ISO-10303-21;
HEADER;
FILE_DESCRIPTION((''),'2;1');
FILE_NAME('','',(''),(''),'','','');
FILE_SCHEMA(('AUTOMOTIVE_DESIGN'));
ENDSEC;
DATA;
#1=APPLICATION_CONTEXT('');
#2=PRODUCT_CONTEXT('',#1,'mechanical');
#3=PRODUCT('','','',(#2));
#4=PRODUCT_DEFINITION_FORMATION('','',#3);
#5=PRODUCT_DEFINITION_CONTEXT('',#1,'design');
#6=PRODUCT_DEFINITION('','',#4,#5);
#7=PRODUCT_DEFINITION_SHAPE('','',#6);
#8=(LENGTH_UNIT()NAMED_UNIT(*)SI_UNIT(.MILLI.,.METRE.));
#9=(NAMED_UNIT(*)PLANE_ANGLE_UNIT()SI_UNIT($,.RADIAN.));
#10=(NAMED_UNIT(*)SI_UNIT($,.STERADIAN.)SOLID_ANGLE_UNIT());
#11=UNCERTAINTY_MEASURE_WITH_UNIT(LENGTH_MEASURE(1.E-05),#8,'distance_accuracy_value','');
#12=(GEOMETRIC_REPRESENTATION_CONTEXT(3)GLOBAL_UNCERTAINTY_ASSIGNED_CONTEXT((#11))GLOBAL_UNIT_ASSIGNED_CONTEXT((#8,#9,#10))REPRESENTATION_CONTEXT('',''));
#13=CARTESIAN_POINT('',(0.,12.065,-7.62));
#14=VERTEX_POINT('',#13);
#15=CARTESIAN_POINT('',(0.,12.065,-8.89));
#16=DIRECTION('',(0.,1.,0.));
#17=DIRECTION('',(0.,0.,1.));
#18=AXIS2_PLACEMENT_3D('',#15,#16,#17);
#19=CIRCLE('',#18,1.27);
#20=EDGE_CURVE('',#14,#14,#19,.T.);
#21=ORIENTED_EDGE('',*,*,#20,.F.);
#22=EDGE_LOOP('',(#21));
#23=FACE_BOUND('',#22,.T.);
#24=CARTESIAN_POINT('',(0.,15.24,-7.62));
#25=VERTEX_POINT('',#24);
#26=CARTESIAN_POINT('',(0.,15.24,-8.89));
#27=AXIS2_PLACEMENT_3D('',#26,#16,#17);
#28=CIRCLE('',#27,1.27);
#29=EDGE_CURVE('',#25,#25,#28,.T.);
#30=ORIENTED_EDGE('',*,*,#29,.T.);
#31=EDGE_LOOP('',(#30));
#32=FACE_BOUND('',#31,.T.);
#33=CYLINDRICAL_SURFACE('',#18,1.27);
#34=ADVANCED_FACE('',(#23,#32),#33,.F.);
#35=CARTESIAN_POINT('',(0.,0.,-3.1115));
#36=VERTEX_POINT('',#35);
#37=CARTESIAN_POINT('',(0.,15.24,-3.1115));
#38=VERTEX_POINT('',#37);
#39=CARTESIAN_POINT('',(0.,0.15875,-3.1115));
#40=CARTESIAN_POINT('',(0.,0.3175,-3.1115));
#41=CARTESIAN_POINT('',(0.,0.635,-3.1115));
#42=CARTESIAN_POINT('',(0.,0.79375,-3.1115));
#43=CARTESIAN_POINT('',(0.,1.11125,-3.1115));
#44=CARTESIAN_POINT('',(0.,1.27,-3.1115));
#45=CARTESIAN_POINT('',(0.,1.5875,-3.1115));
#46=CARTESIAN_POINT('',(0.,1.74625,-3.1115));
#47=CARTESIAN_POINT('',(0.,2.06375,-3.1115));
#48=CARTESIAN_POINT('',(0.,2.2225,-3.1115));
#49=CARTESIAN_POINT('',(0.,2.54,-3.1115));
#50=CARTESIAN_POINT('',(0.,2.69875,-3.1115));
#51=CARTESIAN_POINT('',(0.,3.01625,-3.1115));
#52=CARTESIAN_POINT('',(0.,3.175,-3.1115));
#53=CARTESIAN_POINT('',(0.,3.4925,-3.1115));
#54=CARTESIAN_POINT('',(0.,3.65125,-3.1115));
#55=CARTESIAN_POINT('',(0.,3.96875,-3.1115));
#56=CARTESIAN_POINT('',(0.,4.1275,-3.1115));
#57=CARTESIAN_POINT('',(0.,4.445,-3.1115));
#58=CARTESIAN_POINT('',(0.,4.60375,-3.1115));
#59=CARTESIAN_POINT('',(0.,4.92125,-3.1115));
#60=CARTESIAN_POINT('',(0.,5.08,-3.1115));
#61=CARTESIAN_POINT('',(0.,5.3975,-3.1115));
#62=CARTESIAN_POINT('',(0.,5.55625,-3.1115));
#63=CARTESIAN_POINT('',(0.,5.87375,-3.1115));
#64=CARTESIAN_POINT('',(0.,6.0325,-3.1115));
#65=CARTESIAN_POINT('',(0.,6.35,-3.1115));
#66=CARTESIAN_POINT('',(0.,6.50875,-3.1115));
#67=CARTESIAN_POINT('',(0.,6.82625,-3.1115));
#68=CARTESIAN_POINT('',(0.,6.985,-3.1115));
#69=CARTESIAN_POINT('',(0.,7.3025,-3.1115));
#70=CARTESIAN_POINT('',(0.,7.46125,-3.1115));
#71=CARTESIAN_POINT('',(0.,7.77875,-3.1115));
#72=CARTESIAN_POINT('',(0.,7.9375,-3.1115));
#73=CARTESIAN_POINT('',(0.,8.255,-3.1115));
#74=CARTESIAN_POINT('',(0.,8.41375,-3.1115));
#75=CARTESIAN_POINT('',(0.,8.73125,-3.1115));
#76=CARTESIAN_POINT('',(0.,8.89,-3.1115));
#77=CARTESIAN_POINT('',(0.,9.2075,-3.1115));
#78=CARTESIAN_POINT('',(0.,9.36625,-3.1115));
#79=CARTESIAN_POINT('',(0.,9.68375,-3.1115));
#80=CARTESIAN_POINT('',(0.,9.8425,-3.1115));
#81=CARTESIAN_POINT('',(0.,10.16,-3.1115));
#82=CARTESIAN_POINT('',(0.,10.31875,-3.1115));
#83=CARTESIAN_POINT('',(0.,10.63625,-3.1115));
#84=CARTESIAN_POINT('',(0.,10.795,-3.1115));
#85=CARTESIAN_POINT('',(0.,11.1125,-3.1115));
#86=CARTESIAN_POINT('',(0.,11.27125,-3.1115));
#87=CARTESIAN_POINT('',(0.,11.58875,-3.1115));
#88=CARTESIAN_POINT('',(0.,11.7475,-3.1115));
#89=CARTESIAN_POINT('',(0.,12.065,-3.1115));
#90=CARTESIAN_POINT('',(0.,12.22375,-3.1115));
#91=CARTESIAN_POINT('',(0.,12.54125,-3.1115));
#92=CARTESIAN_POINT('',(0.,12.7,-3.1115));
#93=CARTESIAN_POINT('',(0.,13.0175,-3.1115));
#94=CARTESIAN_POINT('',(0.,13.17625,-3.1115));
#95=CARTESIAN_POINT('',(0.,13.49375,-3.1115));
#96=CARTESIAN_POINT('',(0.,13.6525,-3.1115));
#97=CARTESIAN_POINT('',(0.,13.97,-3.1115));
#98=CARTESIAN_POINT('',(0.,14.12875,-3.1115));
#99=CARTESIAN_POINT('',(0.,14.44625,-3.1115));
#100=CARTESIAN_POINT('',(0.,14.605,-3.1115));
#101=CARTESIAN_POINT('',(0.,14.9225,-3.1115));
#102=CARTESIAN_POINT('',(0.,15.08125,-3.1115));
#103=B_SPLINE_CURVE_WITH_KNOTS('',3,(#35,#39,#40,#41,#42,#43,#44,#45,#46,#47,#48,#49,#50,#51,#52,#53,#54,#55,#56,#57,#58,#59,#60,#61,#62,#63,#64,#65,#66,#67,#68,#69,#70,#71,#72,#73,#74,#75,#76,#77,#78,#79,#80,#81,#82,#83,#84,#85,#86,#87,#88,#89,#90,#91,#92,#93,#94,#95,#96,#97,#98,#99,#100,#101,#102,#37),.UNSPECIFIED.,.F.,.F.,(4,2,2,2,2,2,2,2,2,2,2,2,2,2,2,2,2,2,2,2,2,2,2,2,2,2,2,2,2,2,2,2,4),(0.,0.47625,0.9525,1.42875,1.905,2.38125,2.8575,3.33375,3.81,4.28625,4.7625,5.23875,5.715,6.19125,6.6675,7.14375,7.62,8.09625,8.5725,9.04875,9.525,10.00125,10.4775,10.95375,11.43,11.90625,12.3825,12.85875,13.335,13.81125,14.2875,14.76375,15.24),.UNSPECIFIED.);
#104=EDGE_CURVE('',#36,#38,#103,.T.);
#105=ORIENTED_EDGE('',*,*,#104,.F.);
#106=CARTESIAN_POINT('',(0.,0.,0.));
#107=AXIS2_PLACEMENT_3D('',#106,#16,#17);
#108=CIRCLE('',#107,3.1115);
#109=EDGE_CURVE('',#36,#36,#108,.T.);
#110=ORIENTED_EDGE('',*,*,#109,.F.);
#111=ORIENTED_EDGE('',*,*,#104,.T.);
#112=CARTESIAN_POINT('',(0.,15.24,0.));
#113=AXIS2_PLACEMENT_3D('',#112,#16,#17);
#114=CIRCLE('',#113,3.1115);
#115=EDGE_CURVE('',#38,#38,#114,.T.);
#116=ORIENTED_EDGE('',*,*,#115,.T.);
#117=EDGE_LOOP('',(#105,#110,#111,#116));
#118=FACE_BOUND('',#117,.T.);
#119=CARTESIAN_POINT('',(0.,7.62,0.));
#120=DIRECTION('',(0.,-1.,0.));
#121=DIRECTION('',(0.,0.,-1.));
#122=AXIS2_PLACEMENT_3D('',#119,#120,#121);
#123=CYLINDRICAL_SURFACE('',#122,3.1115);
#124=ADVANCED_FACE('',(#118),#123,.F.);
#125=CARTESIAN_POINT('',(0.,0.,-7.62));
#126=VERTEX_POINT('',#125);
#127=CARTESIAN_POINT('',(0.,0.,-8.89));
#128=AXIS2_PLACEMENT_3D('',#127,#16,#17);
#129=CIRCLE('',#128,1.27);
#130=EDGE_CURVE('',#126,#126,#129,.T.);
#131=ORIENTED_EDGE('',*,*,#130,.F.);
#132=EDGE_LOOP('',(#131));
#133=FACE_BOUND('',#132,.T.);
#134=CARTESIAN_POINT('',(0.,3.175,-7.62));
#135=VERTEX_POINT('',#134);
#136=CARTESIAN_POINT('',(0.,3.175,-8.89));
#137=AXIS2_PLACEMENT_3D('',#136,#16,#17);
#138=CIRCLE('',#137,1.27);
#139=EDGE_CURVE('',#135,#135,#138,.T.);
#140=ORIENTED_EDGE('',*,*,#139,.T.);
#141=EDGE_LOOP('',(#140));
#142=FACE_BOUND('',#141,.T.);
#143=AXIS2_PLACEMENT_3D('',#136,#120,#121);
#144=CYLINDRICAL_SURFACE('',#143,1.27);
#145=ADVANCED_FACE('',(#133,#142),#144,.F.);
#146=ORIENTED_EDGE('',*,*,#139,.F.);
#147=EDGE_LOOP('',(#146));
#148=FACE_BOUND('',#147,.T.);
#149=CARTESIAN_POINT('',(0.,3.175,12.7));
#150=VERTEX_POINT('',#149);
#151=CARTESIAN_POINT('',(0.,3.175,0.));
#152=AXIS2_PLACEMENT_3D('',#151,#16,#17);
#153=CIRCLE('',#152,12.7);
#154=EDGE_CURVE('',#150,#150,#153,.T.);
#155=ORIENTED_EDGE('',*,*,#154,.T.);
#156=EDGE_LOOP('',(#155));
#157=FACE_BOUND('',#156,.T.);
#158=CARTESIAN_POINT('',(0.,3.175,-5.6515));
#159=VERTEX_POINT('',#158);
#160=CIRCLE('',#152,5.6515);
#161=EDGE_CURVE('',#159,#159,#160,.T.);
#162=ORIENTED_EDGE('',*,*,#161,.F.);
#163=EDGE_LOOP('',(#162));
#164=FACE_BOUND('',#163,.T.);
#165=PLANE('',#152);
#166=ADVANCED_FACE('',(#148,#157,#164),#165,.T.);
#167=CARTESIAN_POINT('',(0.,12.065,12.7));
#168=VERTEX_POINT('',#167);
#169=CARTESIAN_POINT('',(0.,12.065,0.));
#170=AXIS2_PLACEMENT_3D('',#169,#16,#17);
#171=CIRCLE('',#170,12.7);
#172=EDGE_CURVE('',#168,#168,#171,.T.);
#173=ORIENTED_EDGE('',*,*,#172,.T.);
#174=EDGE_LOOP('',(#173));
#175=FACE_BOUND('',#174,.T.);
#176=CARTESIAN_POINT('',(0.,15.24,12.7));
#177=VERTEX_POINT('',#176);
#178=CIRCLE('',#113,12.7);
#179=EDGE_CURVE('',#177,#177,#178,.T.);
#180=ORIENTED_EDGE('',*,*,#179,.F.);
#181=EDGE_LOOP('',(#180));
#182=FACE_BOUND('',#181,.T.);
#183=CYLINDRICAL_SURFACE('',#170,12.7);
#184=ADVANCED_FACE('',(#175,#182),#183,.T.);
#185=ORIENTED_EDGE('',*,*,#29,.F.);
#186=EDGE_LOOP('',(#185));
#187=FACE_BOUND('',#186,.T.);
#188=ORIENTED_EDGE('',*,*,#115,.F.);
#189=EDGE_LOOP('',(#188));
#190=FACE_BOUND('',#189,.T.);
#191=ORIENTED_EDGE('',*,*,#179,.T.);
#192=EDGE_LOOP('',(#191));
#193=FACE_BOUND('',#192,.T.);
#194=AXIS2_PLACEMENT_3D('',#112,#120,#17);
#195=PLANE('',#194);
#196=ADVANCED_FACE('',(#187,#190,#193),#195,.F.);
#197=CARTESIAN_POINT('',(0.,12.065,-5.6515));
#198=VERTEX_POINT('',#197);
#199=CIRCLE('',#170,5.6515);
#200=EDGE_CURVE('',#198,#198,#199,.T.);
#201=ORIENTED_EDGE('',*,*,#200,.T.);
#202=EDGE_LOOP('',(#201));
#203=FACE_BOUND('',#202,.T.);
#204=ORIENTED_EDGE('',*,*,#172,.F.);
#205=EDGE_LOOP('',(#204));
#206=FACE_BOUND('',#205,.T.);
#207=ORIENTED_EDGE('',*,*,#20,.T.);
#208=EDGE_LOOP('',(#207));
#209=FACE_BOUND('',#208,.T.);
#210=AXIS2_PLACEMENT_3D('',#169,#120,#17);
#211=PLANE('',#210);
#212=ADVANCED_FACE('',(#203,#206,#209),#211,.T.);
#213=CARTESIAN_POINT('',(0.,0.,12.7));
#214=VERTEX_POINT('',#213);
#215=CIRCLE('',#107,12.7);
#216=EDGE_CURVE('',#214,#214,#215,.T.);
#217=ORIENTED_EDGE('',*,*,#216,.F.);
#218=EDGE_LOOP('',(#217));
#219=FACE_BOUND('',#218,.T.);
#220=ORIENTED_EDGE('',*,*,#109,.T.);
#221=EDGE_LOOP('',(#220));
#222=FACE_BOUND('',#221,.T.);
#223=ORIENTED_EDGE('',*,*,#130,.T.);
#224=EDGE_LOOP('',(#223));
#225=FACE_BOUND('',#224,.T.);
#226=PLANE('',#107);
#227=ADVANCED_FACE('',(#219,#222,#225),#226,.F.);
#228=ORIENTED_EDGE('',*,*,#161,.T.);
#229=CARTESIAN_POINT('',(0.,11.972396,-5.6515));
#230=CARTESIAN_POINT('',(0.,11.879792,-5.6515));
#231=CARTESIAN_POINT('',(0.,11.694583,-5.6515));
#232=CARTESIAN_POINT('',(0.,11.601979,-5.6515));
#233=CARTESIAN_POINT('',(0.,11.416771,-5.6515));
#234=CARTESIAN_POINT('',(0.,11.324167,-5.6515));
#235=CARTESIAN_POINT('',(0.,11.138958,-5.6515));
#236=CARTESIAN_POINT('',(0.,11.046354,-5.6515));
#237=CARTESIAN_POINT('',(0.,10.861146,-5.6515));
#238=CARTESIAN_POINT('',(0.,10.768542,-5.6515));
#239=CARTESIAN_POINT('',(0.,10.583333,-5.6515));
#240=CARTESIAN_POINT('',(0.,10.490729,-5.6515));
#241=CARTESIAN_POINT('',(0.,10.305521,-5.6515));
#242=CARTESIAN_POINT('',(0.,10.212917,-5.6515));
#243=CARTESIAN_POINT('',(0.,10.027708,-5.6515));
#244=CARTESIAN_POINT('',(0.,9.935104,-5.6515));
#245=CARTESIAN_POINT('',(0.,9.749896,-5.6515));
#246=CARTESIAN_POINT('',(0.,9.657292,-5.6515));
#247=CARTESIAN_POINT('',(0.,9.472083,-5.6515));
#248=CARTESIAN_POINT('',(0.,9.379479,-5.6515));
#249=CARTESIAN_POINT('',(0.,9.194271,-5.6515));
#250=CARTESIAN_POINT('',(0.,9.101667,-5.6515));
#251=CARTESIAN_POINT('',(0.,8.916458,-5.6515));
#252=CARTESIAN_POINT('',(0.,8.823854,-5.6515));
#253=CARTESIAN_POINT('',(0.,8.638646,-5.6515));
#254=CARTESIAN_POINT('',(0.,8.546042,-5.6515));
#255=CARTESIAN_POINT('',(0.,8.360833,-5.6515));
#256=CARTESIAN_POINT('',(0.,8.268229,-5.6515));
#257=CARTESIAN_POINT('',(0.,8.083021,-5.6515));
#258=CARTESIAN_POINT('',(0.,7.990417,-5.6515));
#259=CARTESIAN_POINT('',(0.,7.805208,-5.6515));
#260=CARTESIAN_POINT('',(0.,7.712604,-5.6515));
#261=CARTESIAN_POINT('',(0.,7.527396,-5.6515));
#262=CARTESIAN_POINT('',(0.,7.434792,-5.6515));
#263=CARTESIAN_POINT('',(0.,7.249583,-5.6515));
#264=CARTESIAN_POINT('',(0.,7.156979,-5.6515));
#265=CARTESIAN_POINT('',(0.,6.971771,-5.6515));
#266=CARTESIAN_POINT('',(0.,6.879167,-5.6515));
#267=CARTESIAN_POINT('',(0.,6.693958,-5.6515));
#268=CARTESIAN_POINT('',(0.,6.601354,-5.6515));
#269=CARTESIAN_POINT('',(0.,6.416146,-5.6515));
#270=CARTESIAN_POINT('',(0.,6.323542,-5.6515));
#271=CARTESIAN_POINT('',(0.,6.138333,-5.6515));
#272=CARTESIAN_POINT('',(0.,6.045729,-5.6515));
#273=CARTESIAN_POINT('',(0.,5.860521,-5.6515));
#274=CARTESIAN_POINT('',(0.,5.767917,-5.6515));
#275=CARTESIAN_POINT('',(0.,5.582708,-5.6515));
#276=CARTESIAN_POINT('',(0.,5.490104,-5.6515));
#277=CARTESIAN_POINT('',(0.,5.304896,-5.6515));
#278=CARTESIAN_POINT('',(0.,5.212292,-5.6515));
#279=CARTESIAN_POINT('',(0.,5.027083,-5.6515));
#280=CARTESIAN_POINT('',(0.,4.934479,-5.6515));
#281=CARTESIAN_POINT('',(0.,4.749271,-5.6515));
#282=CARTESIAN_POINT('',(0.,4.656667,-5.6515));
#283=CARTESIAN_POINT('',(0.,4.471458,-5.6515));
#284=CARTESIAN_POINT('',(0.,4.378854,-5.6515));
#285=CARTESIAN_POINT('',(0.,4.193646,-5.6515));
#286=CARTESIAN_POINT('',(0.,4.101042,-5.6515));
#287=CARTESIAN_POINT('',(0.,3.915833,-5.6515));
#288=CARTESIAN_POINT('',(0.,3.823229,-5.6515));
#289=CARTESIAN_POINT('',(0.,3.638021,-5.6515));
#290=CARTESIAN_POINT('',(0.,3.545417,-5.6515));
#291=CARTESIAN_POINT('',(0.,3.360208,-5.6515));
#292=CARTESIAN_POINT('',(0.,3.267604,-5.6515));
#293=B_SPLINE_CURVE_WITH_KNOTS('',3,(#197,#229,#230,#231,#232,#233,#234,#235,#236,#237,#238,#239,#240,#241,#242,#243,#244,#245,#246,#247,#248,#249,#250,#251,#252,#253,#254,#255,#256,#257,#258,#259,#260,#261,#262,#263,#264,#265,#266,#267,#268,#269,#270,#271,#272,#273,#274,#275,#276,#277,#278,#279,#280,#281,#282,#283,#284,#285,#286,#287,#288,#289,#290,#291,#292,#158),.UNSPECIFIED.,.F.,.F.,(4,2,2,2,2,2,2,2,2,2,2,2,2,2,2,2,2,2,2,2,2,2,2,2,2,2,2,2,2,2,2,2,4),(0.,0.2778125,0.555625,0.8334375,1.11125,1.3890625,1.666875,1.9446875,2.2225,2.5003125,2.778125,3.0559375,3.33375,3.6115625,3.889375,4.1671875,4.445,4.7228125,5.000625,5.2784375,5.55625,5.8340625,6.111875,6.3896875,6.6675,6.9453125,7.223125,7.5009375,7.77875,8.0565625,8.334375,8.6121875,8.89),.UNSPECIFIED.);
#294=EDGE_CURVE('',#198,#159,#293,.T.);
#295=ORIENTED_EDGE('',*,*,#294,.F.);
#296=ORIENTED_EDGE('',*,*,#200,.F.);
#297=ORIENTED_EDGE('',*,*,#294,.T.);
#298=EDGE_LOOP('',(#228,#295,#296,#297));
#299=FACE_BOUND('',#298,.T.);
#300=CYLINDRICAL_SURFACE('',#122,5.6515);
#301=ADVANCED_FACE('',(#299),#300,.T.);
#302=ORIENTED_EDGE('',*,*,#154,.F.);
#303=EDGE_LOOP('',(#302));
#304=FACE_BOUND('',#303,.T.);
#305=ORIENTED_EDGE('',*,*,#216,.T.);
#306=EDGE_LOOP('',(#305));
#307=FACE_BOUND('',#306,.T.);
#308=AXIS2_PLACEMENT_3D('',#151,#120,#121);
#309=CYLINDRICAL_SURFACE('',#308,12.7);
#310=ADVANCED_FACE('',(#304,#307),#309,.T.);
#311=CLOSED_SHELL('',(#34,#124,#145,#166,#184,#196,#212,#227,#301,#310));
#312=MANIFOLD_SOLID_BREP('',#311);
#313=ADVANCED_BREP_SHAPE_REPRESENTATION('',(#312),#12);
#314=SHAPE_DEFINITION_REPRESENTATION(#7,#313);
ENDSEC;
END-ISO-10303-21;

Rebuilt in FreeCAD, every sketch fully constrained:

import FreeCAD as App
import Part
import Sketcher

V = App.Vector
Q = App.Units.Quantity

doc = App.newDocument("Part")
body = doc.addObject("PartDesign::Body", "Body")

sketch1 = body.newObject("Sketcher::SketchObject", "Sketch")
sketch1.AttachmentSupport = (doc.getObject("XZ_Plane"), [""])
sketch1.MapMode = "FlatFace"
sketch1.addGeometry([
    Part.Circle(V(0, 0, 0), V(0, 0, 1), 5.7),
    Part.Circle(V(0, 0, 0), V(0, 0, 1), 3.1),
], False)
sketch1.addConstraint([
    Sketcher.Constraint("Coincident", 0, 3, -1, 1),
    Sketcher.Constraint("Coincident", 1, 3, -1, 1),
    Sketcher.Constraint("Diameter", 0, Q("0.445 in")),
    Sketcher.Constraint("Diameter", 1, Q("0.245 in")),
])
pad1 = body.newObject("PartDesign::Pad", "Pad")
pad1.Profile = sketch1
pad1.Length = Q("0.3 in")
pad1.Reversed = True

sketch2 = body.newObject("Sketcher::SketchObject", "Sketch001")
sketch2.AttachmentSupport = (doc.getObject("XZ_Plane"), [""])
sketch2.MapMode = "FlatFace"
sketch2.addGeometry([
    Part.Circle(V(0, 0, 0), V(0, 0, 1), 12.7),
    Part.Circle(V(0, -8.9, 0), V(0, 0, 1), 1.3),
    Part.Circle(V(0, 0, 0), V(0, 0, 1), 5.7),
], False)
sketch2.addConstraint([
    Sketcher.Constraint("Coincident", 0, 3, -1, 1),
    Sketcher.Constraint("Coincident", 2, 3, -1, 1),
    Sketcher.Constraint("PointOnObject", 1, 3, -2),
    Sketcher.Constraint("Diameter", 0, Q("1 in")),
    Sketcher.Constraint("Diameter", 1, Q("0.1 in")),
    Sketcher.Constraint("Diameter", 2, Q("0.445 in")),
    Sketcher.Constraint("DistanceY", 1, 3, -1, 1, Q("0.35 in")),
])
pad2 = body.newObject("PartDesign::Pad", "Pad001")
pad2.Profile = sketch2
pad2.Length = Q("0.125 in")
pad2.Reversed = True
doc.recompute()

datumplane = body.newObject("PartDesign::Plane", "DatumPlane")
datumplane.AttachmentSupport = (doc.getObject("XZ_Plane"), [""])
datumplane.MapMode = "FlatFace"
datumplane.AttachmentOffset = App.Placement(V(0, 0, -0.3 * 25.4), App.Rotation())
mirrored = body.newObject("PartDesign::Mirrored", "Mirrored")
mirrored.Originals = [pad1, pad2]
mirrored.MirrorPlane = (datumplane, [""])
body.Tip = mirrored

doc.recompute()
